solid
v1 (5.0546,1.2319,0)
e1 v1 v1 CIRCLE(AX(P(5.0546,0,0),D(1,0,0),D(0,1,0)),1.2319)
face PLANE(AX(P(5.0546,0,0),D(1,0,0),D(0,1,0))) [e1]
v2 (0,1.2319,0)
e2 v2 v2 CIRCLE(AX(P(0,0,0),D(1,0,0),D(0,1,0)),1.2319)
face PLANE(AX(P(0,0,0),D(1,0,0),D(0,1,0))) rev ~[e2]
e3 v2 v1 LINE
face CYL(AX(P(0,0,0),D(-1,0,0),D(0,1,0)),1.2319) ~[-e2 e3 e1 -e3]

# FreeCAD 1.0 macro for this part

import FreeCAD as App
import Part
import Sketcher
from FreeCAD import Vector
Q = App.Units.Quantity

doc = App.newDocument("Part")
body = doc.addObject("PartDesign::Body", "Body")

# Sketch on YZ plane
sketch1 = body.newObject("Sketcher::SketchObject", "Sketch")
sketch1.AttachmentSupport = (doc.getObject("YZ_Plane"), [""])
sketch1.MapMode = "FlatFace"
sketch1.addGeometry(Part.Circle(Vector(0, 0, 0), Vector(0, 0, 1), 1.2), False)
sketch1.addConstraint([
    Sketcher.Constraint("Coincident", 0, 3, -1, 1),
    Sketcher.Constraint("Diameter", 0, Q("0.097 in")),
])
pad1 = body.newObject("PartDesign::Pad", "Pad")
pad1.Profile = sketch1
pad1.Length = Q("0.199 in")

doc.recompute()
